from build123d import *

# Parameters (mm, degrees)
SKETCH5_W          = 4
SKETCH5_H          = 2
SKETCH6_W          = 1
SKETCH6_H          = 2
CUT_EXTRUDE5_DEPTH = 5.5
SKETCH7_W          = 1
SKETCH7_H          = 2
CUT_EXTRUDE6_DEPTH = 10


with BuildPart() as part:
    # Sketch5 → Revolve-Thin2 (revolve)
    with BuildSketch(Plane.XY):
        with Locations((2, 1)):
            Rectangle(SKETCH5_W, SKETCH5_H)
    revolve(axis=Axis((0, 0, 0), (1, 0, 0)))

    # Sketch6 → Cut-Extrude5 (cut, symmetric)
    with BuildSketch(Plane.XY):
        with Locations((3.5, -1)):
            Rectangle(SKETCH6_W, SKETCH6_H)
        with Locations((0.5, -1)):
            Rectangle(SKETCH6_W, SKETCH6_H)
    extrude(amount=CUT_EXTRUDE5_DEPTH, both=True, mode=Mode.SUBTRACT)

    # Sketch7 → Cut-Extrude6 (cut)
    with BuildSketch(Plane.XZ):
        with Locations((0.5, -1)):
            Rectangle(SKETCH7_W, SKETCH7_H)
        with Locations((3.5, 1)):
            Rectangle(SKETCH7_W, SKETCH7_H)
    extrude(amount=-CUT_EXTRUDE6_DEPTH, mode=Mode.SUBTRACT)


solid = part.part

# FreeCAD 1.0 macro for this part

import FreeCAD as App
import Part
import Sketcher

V = App.Vector

doc = App.newDocument("Part")
params = doc.addObject("Spreadsheet::Sheet", "Params")
for row, (alias, value) in enumerate([
    ("sketch1_width", "4 mm"),
    ("sketch1_height", "2 mm"),
    ("revolution_angle", "360 deg"),
    ("sketch2_width", "1 mm"),
    ("sketch2_height", "2 mm"),
    ("pocket1_length", "11 mm"),
    ("sketch3_width", "1 mm"),
    ("sketch3_height", "2 mm"),
    ("pocket2_length", "10 mm"),
], start=1):
    params.set(f"A{row}", alias)
    params.set(f"B{row}", "=" + value)
    params.setAlias(f"B{row}", alias)

body = doc.addObject("PartDesign::Body", "Body")

sketch1 = body.newObject("Sketcher::SketchObject", "Sketch")
sketch1.AttachmentSupport = (doc.getObject("XY_Plane"), [""])
sketch1.MapMode = "FlatFace"
sketch1.addGeometry([
    Part.LineSegment(V(0, 2, 0), V(0, 0, 0)),
    Part.LineSegment(V(0, 0, 0), V(4, 0, 0)),
    Part.LineSegment(V(4, 0, 0), V(4, 2, 0)),
    Part.LineSegment(V(4, 2, 0), V(0, 2, 0)),
], False)
sketch1.addConstraint([
    Sketcher.Constraint("Coincident", 0, 2, 1, 1),
    Sketcher.Constraint("Coincident", 1, 2, 2, 1),
    Sketcher.Constraint("Coincident", 2, 2, 3, 1),
    Sketcher.Constraint("Coincident", 3, 2, 0, 1),
    Sketcher.Constraint("Vertical", 0),
    Sketcher.Constraint("Horizontal", 1),
    Sketcher.Constraint("Vertical", 2),
    Sketcher.Constraint("Horizontal", 3),
    Sketcher.Constraint("Coincident", 0, 2, -1, 1),
    Sketcher.Constraint("DistanceX", 1, 1, 1, 2, 4.0),
    Sketcher.Constraint("DistanceY", 0, 2, 0, 1, 2.0),
])
sketch1.setExpression("Constraints[9]", "Params.sketch1_width")
sketch1.setExpression("Constraints[10]", "Params.sketch1_height")
revolution = body.newObject("PartDesign::Revolution", "Revolution")
revolution.Profile = sketch1
revolution.ReferenceAxis = (sketch1, ["H_Axis"])
revolution.setExpression("Angle", "Params.revolution_angle")

sketch2 = body.newObject("Sketcher::SketchObject", "Sketch001")
sketch2.AttachmentSupport = (doc.getObject("XY_Plane"), [""])
sketch2.MapMode = "FlatFace"
sketch2.addGeometry([
    Part.LineSegment(V(3, 0, 0), V(3, -2, 0)),
    Part.LineSegment(V(3, -2, 0), V(4, -2, 0)),
    Part.LineSegment(V(4, -2, 0), V(4, 0, 0)),
    Part.LineSegment(V(4, 0, 0), V(3, 0, 0)),
    Part.LineSegment(V(0, 0, 0), V(0, -2, 0)),
    Part.LineSegment(V(0, -2, 0), V(1, -2, 0)),
    Part.LineSegment(V(1, -2, 0), V(1, 0, 0)),
    Part.LineSegment(V(1, 0, 0), V(0, 0, 0)),
], False)
sketch2.addConstraint([
    Sketcher.Constraint("Coincident", 0, 2, 1, 1),
    Sketcher.Constraint("Coincident", 1, 2, 2, 1),
    Sketcher.Constraint("Coincident", 2, 2, 3, 1),
    Sketcher.Constraint("Coincident", 3, 2, 0, 1),
    Sketcher.Constraint("Coincident", 4, 2, 5, 1),
    Sketcher.Constraint("Coincident", 5, 2, 6, 1),
    Sketcher.Constraint("Coincident", 6, 2, 7, 1),
    Sketcher.Constraint("Coincident", 7, 2, 4, 1),
    Sketcher.Constraint("Vertical", 0),
    Sketcher.Constraint("Horizontal", 1),
    Sketcher.Constraint("Vertical", 2),
    Sketcher.Constraint("Horizontal", 3),
    Sketcher.Constraint("Vertical", 4),
    Sketcher.Constraint("Horizontal", 5),
    Sketcher.Constraint("Vertical", 6),
    Sketcher.Constraint("Horizontal", 7),
    Sketcher.Constraint("Coincident", 7, 2, -1, 1),
    Sketcher.Constraint("PointOnObject", 2, 2, -1),
    Sketcher.Constraint("Horizontal", 1, 2, 4, 2),
    Sketcher.Constraint("Equal", 3, 5),
    Sketcher.Constraint("DistanceX", 1, 1, 1, 2, 1.0),
    Sketcher.Constraint("DistanceY", 0, 2, 0, 1, 2.0),
    Sketcher.Constraint("DistanceX", -1, 1, 0, 2, 3.0),
])
sketch2.setExpression("Constraints[20]", "Params.sketch2_width")
sketch2.setExpression("Constraints[21]", "Params.sketch2_height")
pocket1 = body.newObject("PartDesign::Pocket", "Pocket")
pocket1.Profile = sketch2
pocket1.setExpression("Length", "Params.pocket1_length")
pocket1.Midplane = True

sketch3 = body.newObject("Sketcher::SketchObject", "Sketch002")
sketch3.AttachmentSupport = (doc.getObject("XZ_Plane"), [""])
sketch3.MapMode = "FlatFace"
sketch3.addGeometry([
    Part.LineSegment(V(0, 0, 0), V(0, -2, 0)),
    Part.LineSegment(V(0, -2, 0), V(1, -2, 0)),
    Part.LineSegment(V(1, -2, 0), V(1, 0, 0)),
    Part.LineSegment(V(1, 0, 0), V(0, 0, 0)),
    Part.LineSegment(V(3, 2, 0), V(3, 0, 0)),
    Part.LineSegment(V(3, 0, 0), V(4, 0, 0)),
    Part.LineSegment(V(4, 0, 0), V(4, 2, 0)),
    Part.LineSegment(V(4, 2, 0), V(3, 2, 0)),
], False)
sketch3.addConstraint([
    Sketcher.Constraint("Coincident", 0, 2, 1, 1),
    Sketcher.Constraint("Coincident", 1, 2, 2, 1),
    Sketcher.Constraint("Coincident", 2, 2, 3, 1),
    Sketcher.Constraint("Coincident", 3, 2, 0, 1),
    Sketcher.Constraint("Coincident", 4, 2, 5, 1),
    Sketcher.Constraint("Coincident", 5, 2, 6, 1),
    Sketcher.Constraint("Coincident", 6, 2, 7, 1),
    Sketcher.Constraint("Coincident", 7, 2, 4, 1),
    Sketcher.Constraint("Vertical", 0),
    Sketcher.Constraint("Horizontal", 1),
    Sketcher.Constraint("Vertical", 2),
    Sketcher.Constraint("Horizontal", 3),
    Sketcher.Constraint("Vertical", 4),
    Sketcher.Constraint("Horizontal", 5),
    Sketcher.Constraint("Vertical", 6),
    Sketcher.Constraint("Horizontal", 7),
    Sketcher.Constraint("Coincident", 3, 2, -1, 1),
    Sketcher.Constraint("PointOnObject", 4, 2, -1),
    Sketcher.Constraint("Equal", 3, 5),
    Sketcher.Constraint("Equal", 2, 4),
    Sketcher.Constraint("DistanceX", 1, 1, 1, 2, 1.0),
    Sketcher.Constraint("DistanceY", 0, 2, 0, 1, 2.0),
    Sketcher.Constraint("DistanceX", -1, 1, 4, 2, 3.0),
])
sketch3.setExpression("Constraints[20]", "Params.sketch3_width")
sketch3.setExpression("Constraints[21]", "Params.sketch3_height")
pocket2 = body.newObject("PartDesign::Pocket", "Pocket001")
pocket2.Profile = sketch3
pocket2.setExpression("Length", "Params.pocket2_length")

doc.recompute()
